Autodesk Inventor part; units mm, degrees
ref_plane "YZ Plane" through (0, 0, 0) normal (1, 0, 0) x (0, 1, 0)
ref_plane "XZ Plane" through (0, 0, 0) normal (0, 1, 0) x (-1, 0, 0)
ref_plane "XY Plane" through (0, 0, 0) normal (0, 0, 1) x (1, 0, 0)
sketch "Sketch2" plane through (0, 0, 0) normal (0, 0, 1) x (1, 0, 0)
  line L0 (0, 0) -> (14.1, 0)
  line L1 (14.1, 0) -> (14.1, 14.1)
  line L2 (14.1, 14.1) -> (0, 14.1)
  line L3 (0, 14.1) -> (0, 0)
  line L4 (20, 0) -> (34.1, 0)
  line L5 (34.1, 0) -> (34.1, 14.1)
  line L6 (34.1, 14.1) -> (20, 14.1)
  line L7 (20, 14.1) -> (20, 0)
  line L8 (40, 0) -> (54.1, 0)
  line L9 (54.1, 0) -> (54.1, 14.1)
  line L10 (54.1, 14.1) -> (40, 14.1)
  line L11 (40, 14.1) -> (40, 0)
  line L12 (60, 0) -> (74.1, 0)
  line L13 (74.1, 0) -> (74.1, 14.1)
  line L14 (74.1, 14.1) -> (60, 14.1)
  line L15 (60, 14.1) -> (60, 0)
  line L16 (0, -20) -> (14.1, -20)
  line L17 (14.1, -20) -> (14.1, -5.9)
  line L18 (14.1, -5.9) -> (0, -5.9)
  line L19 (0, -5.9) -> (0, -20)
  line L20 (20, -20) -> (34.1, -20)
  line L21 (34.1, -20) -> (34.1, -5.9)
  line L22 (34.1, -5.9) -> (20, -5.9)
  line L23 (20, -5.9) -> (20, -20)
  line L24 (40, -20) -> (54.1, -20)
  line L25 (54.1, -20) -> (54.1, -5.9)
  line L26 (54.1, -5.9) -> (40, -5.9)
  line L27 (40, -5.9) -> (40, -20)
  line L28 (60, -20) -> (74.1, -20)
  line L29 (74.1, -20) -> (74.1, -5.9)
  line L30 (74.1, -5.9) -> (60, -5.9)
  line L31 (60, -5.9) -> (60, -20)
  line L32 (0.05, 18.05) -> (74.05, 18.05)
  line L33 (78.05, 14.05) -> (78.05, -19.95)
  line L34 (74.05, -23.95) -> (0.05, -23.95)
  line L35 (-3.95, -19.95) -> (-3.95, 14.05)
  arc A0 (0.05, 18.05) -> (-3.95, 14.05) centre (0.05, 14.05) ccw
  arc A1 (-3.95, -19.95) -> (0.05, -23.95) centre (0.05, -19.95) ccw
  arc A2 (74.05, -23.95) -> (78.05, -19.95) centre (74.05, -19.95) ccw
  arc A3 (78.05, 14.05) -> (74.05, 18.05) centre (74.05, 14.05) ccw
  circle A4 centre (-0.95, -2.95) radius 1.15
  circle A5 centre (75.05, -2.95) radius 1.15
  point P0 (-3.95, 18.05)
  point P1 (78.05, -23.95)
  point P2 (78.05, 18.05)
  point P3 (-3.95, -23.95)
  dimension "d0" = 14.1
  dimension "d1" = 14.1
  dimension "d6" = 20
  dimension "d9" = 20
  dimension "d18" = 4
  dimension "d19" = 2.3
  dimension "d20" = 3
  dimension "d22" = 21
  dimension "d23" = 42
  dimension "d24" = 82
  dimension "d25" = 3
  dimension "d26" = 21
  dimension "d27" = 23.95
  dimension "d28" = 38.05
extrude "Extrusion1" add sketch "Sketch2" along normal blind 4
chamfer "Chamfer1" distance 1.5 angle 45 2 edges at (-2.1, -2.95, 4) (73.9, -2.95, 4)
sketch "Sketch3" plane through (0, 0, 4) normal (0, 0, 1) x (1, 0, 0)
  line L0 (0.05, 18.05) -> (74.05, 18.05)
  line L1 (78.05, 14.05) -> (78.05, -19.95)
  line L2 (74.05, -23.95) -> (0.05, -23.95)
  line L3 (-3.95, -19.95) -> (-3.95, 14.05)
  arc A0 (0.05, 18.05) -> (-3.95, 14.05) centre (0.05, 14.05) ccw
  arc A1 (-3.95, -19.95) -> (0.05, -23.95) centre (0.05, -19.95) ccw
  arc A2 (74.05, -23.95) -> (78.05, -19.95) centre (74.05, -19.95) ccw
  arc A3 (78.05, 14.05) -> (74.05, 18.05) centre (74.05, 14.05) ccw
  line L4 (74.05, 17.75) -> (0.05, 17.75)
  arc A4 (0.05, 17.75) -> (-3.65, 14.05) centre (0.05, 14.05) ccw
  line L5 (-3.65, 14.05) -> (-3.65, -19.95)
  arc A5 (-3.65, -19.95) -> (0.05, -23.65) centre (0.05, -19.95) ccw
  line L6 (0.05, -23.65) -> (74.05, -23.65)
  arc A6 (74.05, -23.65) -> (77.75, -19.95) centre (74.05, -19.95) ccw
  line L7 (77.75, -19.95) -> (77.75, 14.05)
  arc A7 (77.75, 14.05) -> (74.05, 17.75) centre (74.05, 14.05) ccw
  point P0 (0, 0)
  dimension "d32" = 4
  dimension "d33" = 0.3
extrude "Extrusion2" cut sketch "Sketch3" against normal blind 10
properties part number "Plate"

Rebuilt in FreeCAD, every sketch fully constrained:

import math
import FreeCAD as App
import Part
import Sketcher

V = App.Vector


def edges_at(feature, points):
    """Names of the edges that pass closest to the given points."""
    edges = feature.Shape.Edges
    near = lambda p: min(range(len(edges)), key=lambda i: edges[i].distToShape(Part.Vertex(*p))[0])
    return sorted({f"Edge{near(p) + 1}" for p in points})

doc = App.newDocument("Part")
body = doc.addObject("PartDesign::Body", "Body")

sketch1 = doc.addObject("Sketcher::SketchObject", "Sketch")
body.addObject(sketch1)
sketch1.AttachmentSupport = (doc.XY_Plane, [""])
sketch1.MapMode = "FlatFace"
sketch1.addGeometry([
    Part.LineSegment(V(74.05, 18.05, 0), V(0.05, 18.05, 0)),
    Part.ArcOfCircle(Part.Circle(V(0.05, 14.05, 0), V(0, 0, 1), 4), math.radians(90), math.radians(180)),
    Part.LineSegment(V(-3.95, 14.05, 0), V(-3.95, -19.95, 0)),
    Part.ArcOfCircle(Part.Circle(V(0.05, -19.95, 0), V(0, 0, 1), 4), math.radians(180), math.radians(270)),
    Part.LineSegment(V(0.05, -23.95, 0), V(74.05, -23.95, 0)),
    Part.ArcOfCircle(Part.Circle(V(74.05, -19.95, 0), V(0, 0, 1), 4), math.radians(-90), math.radians(0)),
    Part.LineSegment(V(78.05, -19.95, 0), V(78.05, 14.05, 0)),
    Part.ArcOfCircle(Part.Circle(V(74.05, 14.05, 0), V(0, 0, 1), 4), math.radians(0), math.radians(90)),
    Part.LineSegment(V(14.1, -20, 0), V(0, -20, 0)),
    Part.LineSegment(V(0, -20, 0), V(0, -5.9, 0)),
    Part.LineSegment(V(0, -5.9, 0), V(14.1, -5.9, 0)),
    Part.LineSegment(V(14.1, -5.9, 0), V(14.1, -20, 0)),
    Part.LineSegment(V(34.1, -20, 0), V(20, -20, 0)),
    Part.LineSegment(V(20, -20, 0), V(20, -5.9, 0)),
    Part.LineSegment(V(20, -5.9, 0), V(34.1, -5.9, 0)),
    Part.LineSegment(V(34.1, -5.9, 0), V(34.1, -20, 0)),
    Part.LineSegment(V(54.1, -20, 0), V(40, -20, 0)),
    Part.LineSegment(V(40, -20, 0), V(40, -5.9, 0)),
    Part.LineSegment(V(40, -5.9, 0), V(54.1, -5.9, 0)),
    Part.LineSegment(V(54.1, -5.9, 0), V(54.1, -20, 0)),
    Part.LineSegment(V(74.1, -20, 0), V(60, -20, 0)),
    Part.LineSegment(V(60, -20, 0), V(60, -5.9, 0)),
    Part.LineSegment(V(60, -5.9, 0), V(74.1, -5.9, 0)),
    Part.LineSegment(V(74.1, -5.9, 0), V(74.1, -20, 0)),
    Part.Circle(V(-0.95, -2.95, 0), V(0, 0, 1), 1.15),
    Part.LineSegment(V(14.1, 0, 0), V(0, 0, 0)),
    Part.LineSegment(V(0, 0, 0), V(0, 14.1, 0)),
    Part.LineSegment(V(0, 14.1, 0), V(14.1, 14.1, 0)),
    Part.LineSegment(V(14.1, 14.1, 0), V(14.1, 0, 0)),
    Part.LineSegment(V(34.1, 0, 0), V(20, 0, 0)),
    Part.LineSegment(V(20, 0, 0), V(20, 14.1, 0)),
    Part.LineSegment(V(20, 14.1, 0), V(34.1, 14.1, 0)),
    Part.LineSegment(V(34.1, 14.1, 0), V(34.1, 0, 0)),
    Part.LineSegment(V(54.1, 0, 0), V(40, 0, 0)),
    Part.LineSegment(V(40, 0, 0), V(40, 14.1, 0)),
    Part.LineSegment(V(40, 14.1, 0), V(54.1, 14.1, 0)),
    Part.LineSegment(V(54.1, 14.1, 0), V(54.1, 0, 0)),
    Part.Circle(V(75.05, -2.95, 0), V(0, 0, 1), 1.15),
    Part.LineSegment(V(74.1, 0, 0), V(60, 0, 0)),
    Part.LineSegment(V(60, 0, 0), V(60, 14.1, 0)),
    Part.LineSegment(V(60, 14.1, 0), V(74.1, 14.1, 0)),
    Part.LineSegment(V(74.1, 14.1, 0), V(74.1, 0, 0)),
], False)
sketch1.addConstraint([
    Sketcher.Constraint("Tangent", 0, 2, 1, 1),
    Sketcher.Constraint("Tangent", 1, 2, 2, 1),
    Sketcher.Constraint("Tangent", 2, 2, 3, 1),
    Sketcher.Constraint("Tangent", 3, 2, 4, 1),
    Sketcher.Constraint("Tangent", 4, 2, 5, 1),
    Sketcher.Constraint("Tangent", 5, 2, 6, 1),
    Sketcher.Constraint("Tangent", 6, 2, 7, 1),
    Sketcher.Constraint("Tangent", 7, 2, 0, 1),
    Sketcher.Constraint("Coincident", 8, 2, 9, 1),
    Sketcher.Constraint("Coincident", 9, 2, 10, 1),
    Sketcher.Constraint("Coincident", 10, 2, 11, 1),
    Sketcher.Constraint("Coincident", 11, 2, 8, 1),
    Sketcher.Constraint("Coincident", 12, 2, 13, 1),
    Sketcher.Constraint("Coincident", 13, 2, 14, 1),
    Sketcher.Constraint("Coincident", 14, 2, 15, 1),
    Sketcher.Constraint("Coincident", 15, 2, 12, 1),
    Sketcher.Constraint("Coincident", 16, 2, 17, 1),
    Sketcher.Constraint("Coincident", 17, 2, 18, 1),
    Sketcher.Constraint("Coincident", 18, 2, 19, 1),
    Sketcher.Constraint("Coincident", 19, 2, 16, 1),
    Sketcher.Constraint("Coincident", 20, 2, 21, 1),
    Sketcher.Constraint("Coincident", 21, 2, 22, 1),
    Sketcher.Constraint("Coincident", 22, 2, 23, 1),
    Sketcher.Constraint("Coincident", 23, 2, 20, 1),
    Sketcher.Constraint("Coincident", 25, 2, 26, 1),
    Sketcher.Constraint("Coincident", 26, 2, 27, 1),
    Sketcher.Constraint("Coincident", 27, 2, 28, 1),
    Sketcher.Constraint("Coincident", 28, 2, 25, 1),
    Sketcher.Constraint("Coincident", 29, 2, 30, 1),
    Sketcher.Constraint("Coincident", 30, 2, 31, 1),
    Sketcher.Constraint("Coincident", 31, 2, 32, 1),
    Sketcher.Constraint("Coincident", 32, 2, 29, 1),
    Sketcher.Constraint("Coincident", 33, 2, 34, 1),
    Sketcher.Constraint("Coincident", 34, 2, 35, 1),
    Sketcher.Constraint("Coincident", 35, 2, 36, 1),
    Sketcher.Constraint("Coincident", 36, 2, 33, 1),
    Sketcher.Constraint("Coincident", 38, 2, 39, 1),
    Sketcher.Constraint("Coincident", 39, 2, 40, 1),
    Sketcher.Constraint("Coincident", 40, 2, 41, 1),
    Sketcher.Constraint("Coincident", 41, 2, 38, 1),
    Sketcher.Constraint("Horizontal", 0),
    Sketcher.Constraint("Vertical", 2),
    Sketcher.Constraint("Horizontal", 4),
    Sketcher.Constraint("Vertical", 6),
    Sketcher.Constraint("Horizontal", 8),
    Sketcher.Constraint("Vertical", 9),
    Sketcher.Constraint("Horizontal", 10),
    Sketcher.Constraint("Vertical", 11),
    Sketcher.Constraint("Horizontal", 12),
    Sketcher.Constraint("Vertical", 13),
    Sketcher.Constraint("Horizontal", 14),
    Sketcher.Constraint("Vertical", 15),
    Sketcher.Constraint("Horizontal", 16),
    Sketcher.Constraint("Vertical", 17),
    Sketcher.Constraint("Horizontal", 18),
    Sketcher.Constraint("Vertical", 19),
    Sketcher.Constraint("Horizontal", 20),
    Sketcher.Constraint("Vertical", 21),
    Sketcher.Constraint("Horizontal", 22),
    Sketcher.Constraint("Vertical", 23),
    Sketcher.Constraint("Horizontal", 25),
    Sketcher.Constraint("Vertical", 26),
    Sketcher.Constraint("Horizontal", 27),
    Sketcher.Constraint("Vertical", 28),
    Sketcher.Constraint("Horizontal", 29),
    Sketcher.Constraint("Vertical", 30),
    Sketcher.Constraint("Horizontal", 31),
    Sketcher.Constraint("Vertical", 32),
    Sketcher.Constraint("Horizontal", 33),
    Sketcher.Constraint("Vertical", 34),
    Sketcher.Constraint("Horizontal", 35),
    Sketcher.Constraint("Vertical", 36),
    Sketcher.Constraint("Horizontal", 38),
    Sketcher.Constraint("Vertical", 39),
    Sketcher.Constraint("Horizontal", 40),
    Sketcher.Constraint("Vertical", 41),
    Sketcher.Constraint("Coincident", 25, 2, -1, 1),
    Sketcher.Constraint("Equal", 1, 3),
    Sketcher.Constraint("Equal", 3, 5),
    Sketcher.Constraint("Equal", 5, 7),
    Sketcher.Constraint("Equal", 24, 37),
    Sketcher.Constraint("PointOnObject", 8, 2, -2),
    Sketcher.Constraint("PointOnObject", 29, 2, -1),
    Sketcher.Constraint("PointOnObject", 33, 2, -1),
    Sketcher.Constraint("PointOnObject", 38, 2, -1),
    Sketcher.Constraint("Horizontal", 24, 3, 37, 3),
    Sketcher.Constraint("Horizontal", 11, 2, 12, 2),
    Sketcher.Constraint("Horizontal", 10, 2, 13, 2),
    Sketcher.Constraint("Horizontal", 15, 2, 16, 2),
    Sketcher.Constraint("Horizontal", 14, 2, 17, 2),
    Sketcher.Constraint("Horizontal", 19, 2, 20, 2),
    Sketcher.Constraint("Horizontal", 18, 2, 21, 2),
    Sketcher.Constraint("Horizontal", 27, 2, 30, 2),
    Sketcher.Constraint("Horizontal", 31, 2, 34, 2),
    Sketcher.Constraint("Horizontal", 35, 2, 39, 2),
    Sketcher.Constraint("Vertical", 11, 2, 27, 2),
    Sketcher.Constraint("Vertical", 13, 2, 29, 2),
    Sketcher.Constraint("Vertical", 15, 2, 31, 2),
    Sketcher.Constraint("Vertical", 17, 2, 33, 2),
    Sketcher.Constraint("Vertical", 19, 2, 35, 2),
    Sketcher.Constraint("Vertical", 21, 2, 38, 2),
    Sketcher.Constraint("Vertical", 23, 2, 40, 2),
    Sketcher.Constraint("Equal", 10, 12),
    Sketcher.Constraint("Equal", 14, 16),
    Sketcher.Constraint("Equal", 18, 20),
    Sketcher.Constraint("Equal", 40, 9),
    Sketcher.Constraint("Equal", 23, 26),
    Sketcher.Constraint("Radius", 1, 4.0),
    Sketcher.Constraint("Diameter", 24, 2.3),
    Sketcher.Constraint("DistanceX", 8, 2, 8, 1, 14.1),
    Sketcher.Constraint("DistanceY", 8, 2, -1, 1, 20.0),
    Sketcher.Constraint("DistanceX", -1, 1, 12, 2, 20.0),
    Sketcher.Constraint("DistanceY", 24, 3, 0, 2, 21.0),
    Sketcher.Constraint("DistanceX", 1, 2, 24, 3, 3.0),
    Sketcher.Constraint("DistanceY", 3, 2, 24, 3, 21.0),
    Sketcher.Constraint("DistanceX", 37, 3, 5, 2, 3.0),
    Sketcher.Constraint("DistanceX", 12, 2, 16, 2, 20.0),
    Sketcher.Constraint("DistanceX", 0, 2, 0, 1, 74.0),
    Sketcher.Constraint("DistanceY", 3, 2, -1, 1, 23.95),
    Sketcher.Constraint("DistanceX", -1, 1, 20, 2, 60.0),
    Sketcher.Constraint("DistanceX", -1, 1, 1, 3, 0.05),
])
pad1 = doc.addObject("PartDesign::Pad", "Pad")
body.addObject(pad1)
pad1.Profile = sketch1
pad1.Length = 4
doc.recompute()

chamfer = doc.addObject("PartDesign::Chamfer", "Chamfer")
body.addObject(chamfer)
chamfer.Base = (pad1, edges_at(pad1, [(-2.1, -2.95, 4), (73.9, -2.95, 4)]))
chamfer.Size = 1.5

sketch2 = doc.addObject("Sketcher::SketchObject", "Sketch001")
body.addObject(sketch2)
sketch2.AttachmentSupport = (doc.XY_Plane, [""])
sketch2.MapMode = "FlatFace"
sketch2.AttachmentOffset = App.Placement(V(0, 0, 4), App.Rotation())
sketch2.addGeometry([
    Part.LineSegment(V(74.05, 18.05, 0), V(0.05, 18.05, 0)),
    Part.ArcOfCircle(Part.Circle(V(0.05, 14.05, 0), V(0, 0, 1), 4), math.radians(90), math.radians(180)),
    Part.LineSegment(V(-3.95, 14.05, 0), V(-3.95, -19.95, 0)),
    Part.ArcOfCircle(Part.Circle(V(0.05, -19.95, 0), V(0, 0, 1), 4), math.radians(180), math.radians(270)),
    Part.LineSegment(V(0.05, -23.95, 0), V(74.05, -23.95, 0)),
    Part.ArcOfCircle(Part.Circle(V(74.05, -19.95, 0), V(0, 0, 1), 4), math.radians(-90), math.radians(0)),
    Part.LineSegment(V(78.05, -19.95, 0), V(78.05, 14.05, 0)),
    Part.ArcOfCircle(Part.Circle(V(74.05, 14.05, 0), V(0, 0, 1), 4), math.radians(0), math.radians(90)),
    Part.LineSegment(V(0.05, 17.75, 0), V(74.05, 17.75, 0)),
    Part.ArcOfCircle(Part.Circle(V(74.05, 14.05, 0), V(0, 0, 1), 3.7), math.radians(0), math.radians(90)),
    Part.LineSegment(V(77.75, 14.05, 0), V(77.75, -19.95, 0)),
    Part.ArcOfCircle(Part.Circle(V(74.05, -19.95, 0), V(0, 0, 1), 3.7), math.radians(-90), math.radians(0)),
    Part.LineSegment(V(74.05, -23.65, 0), V(0.05, -23.65, 0)),
    Part.ArcOfCircle(Part.Circle(V(0.05, -19.95, 0), V(0, 0, 1), 3.7), math.radians(180), math.radians(270)),
    Part.LineSegment(V(-3.65, -19.95, 0), V(-3.65, 14.05, 0)),
    Part.ArcOfCircle(Part.Circle(V(0.05, 14.05, 0), V(0, 0, 1), 3.7), math.radians(90), math.radians(180)),
], False)
sketch2.addConstraint([
    Sketcher.Constraint("Tangent", 0, 2, 1, 1),
    Sketcher.Constraint("Tangent", 1, 2, 2, 1),
    Sketcher.Constraint("Tangent", 2, 2, 3, 1),
    Sketcher.Constraint("Tangent", 3, 2, 4, 1),
    Sketcher.Constraint("Tangent", 4, 2, 5, 1),
    Sketcher.Constraint("Tangent", 5, 2, 6, 1),
    Sketcher.Constraint("Tangent", 6, 2, 7, 1),
    Sketcher.Constraint("Tangent", 7, 2, 0, 1),
    Sketcher.Constraint("Tangent", 8, 2, 9, 2),
    Sketcher.Constraint("Tangent", 9, 1, 10, 1),
    Sketcher.Constraint("Tangent", 10, 2, 11, 2),
    Sketcher.Constraint("Tangent", 11, 1, 12, 1),
    Sketcher.Constraint("Tangent", 12, 2, 13, 2),
    Sketcher.Constraint("Tangent", 13, 1, 14, 1),
    Sketcher.Constraint("Tangent", 14, 2, 15, 2),
    Sketcher.Constraint("Tangent", 15, 1, 8, 1),
    Sketcher.Constraint("Horizontal", 0),
    Sketcher.Constraint("Vertical", 2),
    Sketcher.Constraint("Horizontal", 4),
    Sketcher.Constraint("Vertical", 6),
    Sketcher.Constraint("Horizontal", 8),
    Sketcher.Constraint("Vertical", 10),
    Sketcher.Constraint("Horizontal", 12),
    Sketcher.Constraint("Vertical", 14),
    Sketcher.Constraint("Coincident", 9, 3, 7, 3),
    Sketcher.Constraint("Coincident", 11, 3, 5, 3),
    Sketcher.Constraint("Coincident", 13, 3, 3, 3),
    Sketcher.Constraint("Equal", 1, 3),
    Sketcher.Constraint("Equal", 3, 5),
    Sketcher.Constraint("Equal", 5, 7),
    Sketcher.Constraint("Equal", 13, 15),
    Sketcher.Constraint("Radius", 1, 4.0),
    Sketcher.Constraint("Radius", 9, 3.7),
    Sketcher.Constraint("DistanceX", 0, 2, 0, 1, 74.0),
    Sketcher.Constraint("DistanceY", 2, 2, 2, 1, 34.0),
    Sketcher.Constraint("DistanceX", -1, 1, 1, 3, 0.05),
    Sketcher.Constraint("DistanceY", -1, 1, 1, 3, 14.05),
])
pocket1 = doc.addObject("PartDesign::Pocket", "Pocket")
body.addObject(pocket1)
pocket1.Profile = sketch2
pocket1.Length = 10

doc.recompute()
